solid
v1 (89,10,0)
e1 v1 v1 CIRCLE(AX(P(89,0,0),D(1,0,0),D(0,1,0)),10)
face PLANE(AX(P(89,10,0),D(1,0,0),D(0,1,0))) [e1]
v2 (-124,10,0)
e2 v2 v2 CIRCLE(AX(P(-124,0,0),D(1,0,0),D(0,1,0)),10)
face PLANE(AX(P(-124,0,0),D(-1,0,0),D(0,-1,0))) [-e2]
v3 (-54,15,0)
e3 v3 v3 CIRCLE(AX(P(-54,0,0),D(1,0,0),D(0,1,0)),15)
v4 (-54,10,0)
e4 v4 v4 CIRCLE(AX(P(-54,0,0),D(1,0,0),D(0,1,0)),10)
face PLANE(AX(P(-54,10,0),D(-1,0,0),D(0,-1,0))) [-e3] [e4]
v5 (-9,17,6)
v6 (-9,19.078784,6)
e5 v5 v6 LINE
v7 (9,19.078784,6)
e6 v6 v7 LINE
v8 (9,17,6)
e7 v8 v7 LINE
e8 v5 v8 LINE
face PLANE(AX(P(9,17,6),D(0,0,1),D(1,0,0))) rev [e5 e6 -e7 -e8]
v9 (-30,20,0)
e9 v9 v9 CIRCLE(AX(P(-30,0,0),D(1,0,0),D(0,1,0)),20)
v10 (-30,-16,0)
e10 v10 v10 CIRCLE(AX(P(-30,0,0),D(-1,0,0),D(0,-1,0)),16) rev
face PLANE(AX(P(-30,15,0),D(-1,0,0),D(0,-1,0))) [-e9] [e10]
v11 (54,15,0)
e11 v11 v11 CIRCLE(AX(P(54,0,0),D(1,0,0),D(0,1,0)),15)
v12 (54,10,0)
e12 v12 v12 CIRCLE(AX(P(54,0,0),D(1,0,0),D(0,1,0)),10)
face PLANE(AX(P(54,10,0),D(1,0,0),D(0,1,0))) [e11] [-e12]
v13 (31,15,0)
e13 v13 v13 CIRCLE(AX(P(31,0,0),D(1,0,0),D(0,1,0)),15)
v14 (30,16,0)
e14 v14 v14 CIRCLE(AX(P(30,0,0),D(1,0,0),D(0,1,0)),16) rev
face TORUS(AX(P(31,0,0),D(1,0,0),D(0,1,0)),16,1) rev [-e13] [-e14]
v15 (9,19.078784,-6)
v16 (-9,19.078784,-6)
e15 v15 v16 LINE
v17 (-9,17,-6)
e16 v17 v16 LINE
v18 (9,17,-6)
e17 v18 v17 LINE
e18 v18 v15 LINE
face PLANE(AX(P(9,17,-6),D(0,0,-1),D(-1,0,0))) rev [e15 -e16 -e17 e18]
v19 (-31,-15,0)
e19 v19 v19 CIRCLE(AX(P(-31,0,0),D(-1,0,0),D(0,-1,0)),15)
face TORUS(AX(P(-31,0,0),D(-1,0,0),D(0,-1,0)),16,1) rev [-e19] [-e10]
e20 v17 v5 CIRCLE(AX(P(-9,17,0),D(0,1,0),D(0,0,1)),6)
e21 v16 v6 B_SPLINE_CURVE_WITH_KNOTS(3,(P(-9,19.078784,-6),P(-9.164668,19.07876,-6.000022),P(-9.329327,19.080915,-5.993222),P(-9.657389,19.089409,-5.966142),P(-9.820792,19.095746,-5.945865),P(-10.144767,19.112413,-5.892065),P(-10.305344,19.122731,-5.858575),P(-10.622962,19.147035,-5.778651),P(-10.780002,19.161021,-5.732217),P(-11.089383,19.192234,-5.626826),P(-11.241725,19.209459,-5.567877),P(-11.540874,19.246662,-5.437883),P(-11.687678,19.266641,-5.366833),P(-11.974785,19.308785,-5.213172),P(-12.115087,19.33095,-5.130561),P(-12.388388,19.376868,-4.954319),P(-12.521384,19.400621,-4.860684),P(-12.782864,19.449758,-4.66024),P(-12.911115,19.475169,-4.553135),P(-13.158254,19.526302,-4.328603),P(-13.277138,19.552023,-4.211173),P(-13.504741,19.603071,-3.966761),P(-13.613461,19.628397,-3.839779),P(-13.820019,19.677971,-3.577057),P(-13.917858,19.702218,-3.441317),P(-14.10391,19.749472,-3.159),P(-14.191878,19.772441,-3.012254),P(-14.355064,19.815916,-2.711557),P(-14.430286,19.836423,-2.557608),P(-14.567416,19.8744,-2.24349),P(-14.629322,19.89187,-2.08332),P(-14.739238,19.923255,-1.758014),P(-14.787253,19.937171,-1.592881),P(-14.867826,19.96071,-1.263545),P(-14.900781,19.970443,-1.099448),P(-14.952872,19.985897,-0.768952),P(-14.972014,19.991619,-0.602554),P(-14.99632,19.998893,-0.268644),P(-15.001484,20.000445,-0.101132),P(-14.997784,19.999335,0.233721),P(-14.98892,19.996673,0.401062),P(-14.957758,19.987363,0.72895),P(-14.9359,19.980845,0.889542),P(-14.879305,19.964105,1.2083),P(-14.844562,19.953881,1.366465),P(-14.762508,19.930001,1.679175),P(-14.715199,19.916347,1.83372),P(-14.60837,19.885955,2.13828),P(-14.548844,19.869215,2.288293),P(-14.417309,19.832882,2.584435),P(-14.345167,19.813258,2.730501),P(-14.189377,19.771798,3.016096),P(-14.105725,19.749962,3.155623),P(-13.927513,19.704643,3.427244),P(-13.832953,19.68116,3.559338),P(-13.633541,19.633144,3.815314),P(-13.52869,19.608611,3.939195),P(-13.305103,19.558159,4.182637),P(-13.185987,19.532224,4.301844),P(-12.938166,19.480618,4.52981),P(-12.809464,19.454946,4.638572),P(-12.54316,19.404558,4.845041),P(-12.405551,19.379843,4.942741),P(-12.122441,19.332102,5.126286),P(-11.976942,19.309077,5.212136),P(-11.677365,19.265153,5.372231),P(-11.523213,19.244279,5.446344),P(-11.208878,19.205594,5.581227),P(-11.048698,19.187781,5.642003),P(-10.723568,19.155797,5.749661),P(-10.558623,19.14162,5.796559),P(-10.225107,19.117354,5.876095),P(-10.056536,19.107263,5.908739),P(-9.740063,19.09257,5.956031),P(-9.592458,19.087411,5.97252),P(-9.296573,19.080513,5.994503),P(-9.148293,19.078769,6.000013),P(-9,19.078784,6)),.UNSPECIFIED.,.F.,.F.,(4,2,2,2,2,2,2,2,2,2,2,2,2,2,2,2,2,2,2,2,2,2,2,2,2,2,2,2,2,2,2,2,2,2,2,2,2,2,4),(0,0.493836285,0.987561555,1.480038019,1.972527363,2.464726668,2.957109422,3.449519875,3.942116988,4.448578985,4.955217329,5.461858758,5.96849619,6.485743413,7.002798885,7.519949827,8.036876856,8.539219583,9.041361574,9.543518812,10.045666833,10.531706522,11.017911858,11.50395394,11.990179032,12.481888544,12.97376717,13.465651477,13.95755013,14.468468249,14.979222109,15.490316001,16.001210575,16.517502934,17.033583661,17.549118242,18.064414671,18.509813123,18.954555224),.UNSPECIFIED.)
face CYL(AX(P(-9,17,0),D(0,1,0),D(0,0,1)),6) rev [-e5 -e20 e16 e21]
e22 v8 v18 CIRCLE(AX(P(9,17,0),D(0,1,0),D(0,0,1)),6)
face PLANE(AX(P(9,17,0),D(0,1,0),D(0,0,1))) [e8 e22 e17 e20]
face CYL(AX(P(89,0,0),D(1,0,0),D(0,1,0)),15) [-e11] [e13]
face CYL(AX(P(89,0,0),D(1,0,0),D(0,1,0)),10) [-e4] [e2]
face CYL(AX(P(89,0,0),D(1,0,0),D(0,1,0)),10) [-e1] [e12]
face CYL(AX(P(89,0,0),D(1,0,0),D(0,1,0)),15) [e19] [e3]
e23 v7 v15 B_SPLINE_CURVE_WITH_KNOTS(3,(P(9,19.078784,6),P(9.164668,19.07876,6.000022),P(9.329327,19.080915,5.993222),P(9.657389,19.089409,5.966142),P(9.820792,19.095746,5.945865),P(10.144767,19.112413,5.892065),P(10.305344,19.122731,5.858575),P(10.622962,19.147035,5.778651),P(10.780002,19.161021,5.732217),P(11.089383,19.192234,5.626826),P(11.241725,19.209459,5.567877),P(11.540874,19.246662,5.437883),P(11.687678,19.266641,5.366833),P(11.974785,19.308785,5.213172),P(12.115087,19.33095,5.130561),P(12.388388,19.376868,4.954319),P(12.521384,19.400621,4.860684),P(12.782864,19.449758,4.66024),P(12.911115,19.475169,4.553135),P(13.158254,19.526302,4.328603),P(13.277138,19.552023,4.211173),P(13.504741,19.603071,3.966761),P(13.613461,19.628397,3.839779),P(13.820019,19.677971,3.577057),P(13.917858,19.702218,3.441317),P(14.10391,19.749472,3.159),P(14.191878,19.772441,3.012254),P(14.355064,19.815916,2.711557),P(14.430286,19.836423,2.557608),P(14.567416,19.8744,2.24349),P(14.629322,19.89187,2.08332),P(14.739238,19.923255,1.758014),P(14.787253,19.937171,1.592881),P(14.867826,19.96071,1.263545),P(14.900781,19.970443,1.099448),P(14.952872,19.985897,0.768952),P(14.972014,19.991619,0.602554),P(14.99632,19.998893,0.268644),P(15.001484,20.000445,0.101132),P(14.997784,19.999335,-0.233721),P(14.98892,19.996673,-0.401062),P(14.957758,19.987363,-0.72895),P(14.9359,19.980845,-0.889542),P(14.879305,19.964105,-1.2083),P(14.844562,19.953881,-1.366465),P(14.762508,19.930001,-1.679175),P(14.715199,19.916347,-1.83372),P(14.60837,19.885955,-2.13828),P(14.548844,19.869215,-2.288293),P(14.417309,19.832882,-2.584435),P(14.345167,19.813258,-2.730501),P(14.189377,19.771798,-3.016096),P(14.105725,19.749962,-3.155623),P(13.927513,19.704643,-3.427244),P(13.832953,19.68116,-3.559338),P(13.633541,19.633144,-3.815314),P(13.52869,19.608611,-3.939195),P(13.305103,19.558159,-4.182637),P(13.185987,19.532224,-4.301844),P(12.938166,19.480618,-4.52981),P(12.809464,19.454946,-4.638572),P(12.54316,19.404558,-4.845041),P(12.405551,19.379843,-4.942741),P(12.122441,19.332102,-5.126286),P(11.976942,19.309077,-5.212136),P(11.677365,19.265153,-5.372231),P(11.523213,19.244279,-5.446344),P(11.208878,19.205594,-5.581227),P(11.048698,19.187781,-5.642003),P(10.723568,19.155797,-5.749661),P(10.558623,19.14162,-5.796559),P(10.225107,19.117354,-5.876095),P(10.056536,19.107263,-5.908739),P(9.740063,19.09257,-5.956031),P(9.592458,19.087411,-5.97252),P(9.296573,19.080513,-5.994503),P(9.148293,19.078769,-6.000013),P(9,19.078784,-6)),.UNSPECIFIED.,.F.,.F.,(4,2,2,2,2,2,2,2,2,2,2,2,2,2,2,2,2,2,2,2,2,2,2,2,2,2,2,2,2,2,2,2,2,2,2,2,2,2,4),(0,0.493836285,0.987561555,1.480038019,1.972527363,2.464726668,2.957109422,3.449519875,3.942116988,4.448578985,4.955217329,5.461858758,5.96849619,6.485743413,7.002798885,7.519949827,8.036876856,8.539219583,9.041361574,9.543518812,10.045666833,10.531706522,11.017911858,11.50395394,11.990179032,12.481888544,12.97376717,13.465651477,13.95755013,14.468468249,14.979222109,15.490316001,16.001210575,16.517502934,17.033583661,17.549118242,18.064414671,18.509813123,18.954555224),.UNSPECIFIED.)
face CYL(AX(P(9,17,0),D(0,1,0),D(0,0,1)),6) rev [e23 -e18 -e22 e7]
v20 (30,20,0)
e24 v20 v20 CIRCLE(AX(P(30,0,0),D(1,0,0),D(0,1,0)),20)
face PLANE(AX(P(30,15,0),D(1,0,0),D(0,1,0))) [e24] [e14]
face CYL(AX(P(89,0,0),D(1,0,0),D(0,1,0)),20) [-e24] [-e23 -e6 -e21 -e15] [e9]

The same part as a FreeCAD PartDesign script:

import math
import FreeCAD as App
import Part
import Sketcher


def edges_at(feature, points):
    """Names of the edges that pass closest to the given points."""
    edges = feature.Shape.Edges
    near = lambda p: min(range(len(edges)), key=lambda i: edges[i].distToShape(Part.Vertex(*p))[0])
    return sorted({f"Edge{near(p) + 1}" for p in points})


def add_polygon(sketch, points):
    """Adds a closed chain of lines whose ends are joined by coincident constraints."""
    first, n = sketch.GeometryCount, len(points)
    for a, b in zip(points, points[1:] + points[:1]):
        sketch.addGeometry(Part.LineSegment(App.Vector(*a, 0), App.Vector(*b, 0)), False)
    for i in range(n):
        sketch.addConstraint(Sketcher.Constraint("Coincident", first + i, 2, first + (i + 1) % n, 1))

doc = App.newDocument("Part")
body = doc.addObject("PartDesign::Body", "Body")

# Sketch on XY plane
sketch1 = body.newObject("Sketcher::SketchObject", "Sketch")
sketch1.AttachmentSupport = (doc.getObject("XY_Plane"), [""])
sketch1.MapMode = "FlatFace"
add_polygon(sketch1, [(-124, 10), (-124, 0), (89, 0), (89, 10), (54, 10), (54, 15), (30, 15), (30, 20), (-30, 20), (-30, 15), (-54, 15), (-54, 10)])  # lines 0-11
sketch1.addConstraint(Sketcher.Constraint("Vertical", 0))
sketch1.addConstraint(Sketcher.Constraint("Horizontal", 1))
sketch1.addConstraint(Sketcher.Constraint("Vertical", 2))
sketch1.addConstraint(Sketcher.Constraint("Horizontal", 3))
sketch1.addConstraint(Sketcher.Constraint("Vertical", 4))
sketch1.addConstraint(Sketcher.Constraint("Horizontal", 5))
sketch1.addConstraint(Sketcher.Constraint("Vertical", 6))
sketch1.addConstraint(Sketcher.Constraint("Horizontal", 7))
sketch1.addConstraint(Sketcher.Constraint("Vertical", 8))
sketch1.addConstraint(Sketcher.Constraint("Horizontal", 9))
sketch1.addConstraint(Sketcher.Constraint("Vertical", 10))
sketch1.addConstraint(Sketcher.Constraint("Horizontal", 11))
sketch1.addConstraint(Sketcher.Constraint("Symmetric", 5, 2, 8, 2, -2))
sketch1.addConstraint(Sketcher.Constraint("Symmetric", 3, 2, 10, 2, -2))
sketch1.addConstraint(Sketcher.Constraint("PointOnObject", 0, 2, -1))
sketch1.addConstraint(Sketcher.Constraint("Equal", 4, 6))
sketch1.addConstraint(Sketcher.Constraint("DistanceX", 1, 1, 1, 2, 213.0))
sketch1.addConstraint(Sketcher.Constraint("DistanceX", 3, 2, 3, 1, 35.0))
sketch1.addConstraint(Sketcher.Constraint("DistanceX", 5, 2, 5, 1, 24.0))
sketch1.addConstraint(Sketcher.Constraint("DistanceX", 7, 2, 7, 1, 60.0))
sketch1.addConstraint(Sketcher.Constraint("DistanceY", 0, 2, 0, 1, 10.0))
sketch1.addConstraint(Sketcher.Constraint("DistanceY", 4, 1, 4, 2, 5.0))
revolution = body.newObject("PartDesign::Revolution", "Revolution")
revolution.Profile = sketch1
revolution.ReferenceAxis = (sketch1, ["H_Axis"])
revolution.Angle = 360
doc.recompute()

fillet = body.newObject("PartDesign::Fillet", "Fillet")
fillet.Base = (revolution, edges_at(revolution, [(30, -15, 0), (-30, -15, 0)]))
fillet.Radius = 1

# Sketch on XZ plane
sketch2 = body.newObject("Sketcher::SketchObject", "Sketch001")
sketch2.AttachmentSupport = (doc.getObject("XZ_Plane"), [""])
sketch2.MapMode = "FlatFace"
sketch2.AttachmentOffset = App.Placement(App.Vector(0, 0, -20), App.Rotation())
sketch2.addGeometry(Part.LineSegment(App.Vector(-9, 6, 0), App.Vector(9, 6, 0)), False)
sketch2.addGeometry(Part.ArcOfCircle(Part.Circle(App.Vector(9, 0, 0), App.Vector(0, 0, 1), 6), math.radians(-90), math.radians(90)), False)
sketch2.addGeometry(Part.LineSegment(App.Vector(9, -6, 0), App.Vector(-9, -6, 0)), False)
sketch2.addGeometry(Part.ArcOfCircle(Part.Circle(App.Vector(-9, 0, 0), App.Vector(0, 0, 1), 6), math.radians(90), math.radians(270)), False)
sketch2.addConstraint(Sketcher.Constraint("Tangent", 0, 2, 1, 2))
sketch2.addConstraint(Sketcher.Constraint("Tangent", 1, 1, 2, 1))
sketch2.addConstraint(Sketcher.Constraint("Tangent", 2, 2, 3, 2))
sketch2.addConstraint(Sketcher.Constraint("Tangent", 3, 1, 0, 1))
sketch2.addConstraint(Sketcher.Constraint("Horizontal", 0))
sketch2.addConstraint(Sketcher.Constraint("Horizontal", 2))
sketch2.addConstraint(Sketcher.Constraint("Symmetric", 1, 3, 3, 3, -1, 1))
sketch2.addConstraint(Sketcher.Constraint("Radius", 1, 6.0))
sketch2.addConstraint(Sketcher.Constraint("DistanceX", 0, 1, 0, 2, 18.0))
pocket1 = body.newObject("PartDesign::Pocket", "Pocket")
pocket1.Profile = sketch2
pocket1.Length = 3
pocket1.Reversed = True

doc.recompute()
